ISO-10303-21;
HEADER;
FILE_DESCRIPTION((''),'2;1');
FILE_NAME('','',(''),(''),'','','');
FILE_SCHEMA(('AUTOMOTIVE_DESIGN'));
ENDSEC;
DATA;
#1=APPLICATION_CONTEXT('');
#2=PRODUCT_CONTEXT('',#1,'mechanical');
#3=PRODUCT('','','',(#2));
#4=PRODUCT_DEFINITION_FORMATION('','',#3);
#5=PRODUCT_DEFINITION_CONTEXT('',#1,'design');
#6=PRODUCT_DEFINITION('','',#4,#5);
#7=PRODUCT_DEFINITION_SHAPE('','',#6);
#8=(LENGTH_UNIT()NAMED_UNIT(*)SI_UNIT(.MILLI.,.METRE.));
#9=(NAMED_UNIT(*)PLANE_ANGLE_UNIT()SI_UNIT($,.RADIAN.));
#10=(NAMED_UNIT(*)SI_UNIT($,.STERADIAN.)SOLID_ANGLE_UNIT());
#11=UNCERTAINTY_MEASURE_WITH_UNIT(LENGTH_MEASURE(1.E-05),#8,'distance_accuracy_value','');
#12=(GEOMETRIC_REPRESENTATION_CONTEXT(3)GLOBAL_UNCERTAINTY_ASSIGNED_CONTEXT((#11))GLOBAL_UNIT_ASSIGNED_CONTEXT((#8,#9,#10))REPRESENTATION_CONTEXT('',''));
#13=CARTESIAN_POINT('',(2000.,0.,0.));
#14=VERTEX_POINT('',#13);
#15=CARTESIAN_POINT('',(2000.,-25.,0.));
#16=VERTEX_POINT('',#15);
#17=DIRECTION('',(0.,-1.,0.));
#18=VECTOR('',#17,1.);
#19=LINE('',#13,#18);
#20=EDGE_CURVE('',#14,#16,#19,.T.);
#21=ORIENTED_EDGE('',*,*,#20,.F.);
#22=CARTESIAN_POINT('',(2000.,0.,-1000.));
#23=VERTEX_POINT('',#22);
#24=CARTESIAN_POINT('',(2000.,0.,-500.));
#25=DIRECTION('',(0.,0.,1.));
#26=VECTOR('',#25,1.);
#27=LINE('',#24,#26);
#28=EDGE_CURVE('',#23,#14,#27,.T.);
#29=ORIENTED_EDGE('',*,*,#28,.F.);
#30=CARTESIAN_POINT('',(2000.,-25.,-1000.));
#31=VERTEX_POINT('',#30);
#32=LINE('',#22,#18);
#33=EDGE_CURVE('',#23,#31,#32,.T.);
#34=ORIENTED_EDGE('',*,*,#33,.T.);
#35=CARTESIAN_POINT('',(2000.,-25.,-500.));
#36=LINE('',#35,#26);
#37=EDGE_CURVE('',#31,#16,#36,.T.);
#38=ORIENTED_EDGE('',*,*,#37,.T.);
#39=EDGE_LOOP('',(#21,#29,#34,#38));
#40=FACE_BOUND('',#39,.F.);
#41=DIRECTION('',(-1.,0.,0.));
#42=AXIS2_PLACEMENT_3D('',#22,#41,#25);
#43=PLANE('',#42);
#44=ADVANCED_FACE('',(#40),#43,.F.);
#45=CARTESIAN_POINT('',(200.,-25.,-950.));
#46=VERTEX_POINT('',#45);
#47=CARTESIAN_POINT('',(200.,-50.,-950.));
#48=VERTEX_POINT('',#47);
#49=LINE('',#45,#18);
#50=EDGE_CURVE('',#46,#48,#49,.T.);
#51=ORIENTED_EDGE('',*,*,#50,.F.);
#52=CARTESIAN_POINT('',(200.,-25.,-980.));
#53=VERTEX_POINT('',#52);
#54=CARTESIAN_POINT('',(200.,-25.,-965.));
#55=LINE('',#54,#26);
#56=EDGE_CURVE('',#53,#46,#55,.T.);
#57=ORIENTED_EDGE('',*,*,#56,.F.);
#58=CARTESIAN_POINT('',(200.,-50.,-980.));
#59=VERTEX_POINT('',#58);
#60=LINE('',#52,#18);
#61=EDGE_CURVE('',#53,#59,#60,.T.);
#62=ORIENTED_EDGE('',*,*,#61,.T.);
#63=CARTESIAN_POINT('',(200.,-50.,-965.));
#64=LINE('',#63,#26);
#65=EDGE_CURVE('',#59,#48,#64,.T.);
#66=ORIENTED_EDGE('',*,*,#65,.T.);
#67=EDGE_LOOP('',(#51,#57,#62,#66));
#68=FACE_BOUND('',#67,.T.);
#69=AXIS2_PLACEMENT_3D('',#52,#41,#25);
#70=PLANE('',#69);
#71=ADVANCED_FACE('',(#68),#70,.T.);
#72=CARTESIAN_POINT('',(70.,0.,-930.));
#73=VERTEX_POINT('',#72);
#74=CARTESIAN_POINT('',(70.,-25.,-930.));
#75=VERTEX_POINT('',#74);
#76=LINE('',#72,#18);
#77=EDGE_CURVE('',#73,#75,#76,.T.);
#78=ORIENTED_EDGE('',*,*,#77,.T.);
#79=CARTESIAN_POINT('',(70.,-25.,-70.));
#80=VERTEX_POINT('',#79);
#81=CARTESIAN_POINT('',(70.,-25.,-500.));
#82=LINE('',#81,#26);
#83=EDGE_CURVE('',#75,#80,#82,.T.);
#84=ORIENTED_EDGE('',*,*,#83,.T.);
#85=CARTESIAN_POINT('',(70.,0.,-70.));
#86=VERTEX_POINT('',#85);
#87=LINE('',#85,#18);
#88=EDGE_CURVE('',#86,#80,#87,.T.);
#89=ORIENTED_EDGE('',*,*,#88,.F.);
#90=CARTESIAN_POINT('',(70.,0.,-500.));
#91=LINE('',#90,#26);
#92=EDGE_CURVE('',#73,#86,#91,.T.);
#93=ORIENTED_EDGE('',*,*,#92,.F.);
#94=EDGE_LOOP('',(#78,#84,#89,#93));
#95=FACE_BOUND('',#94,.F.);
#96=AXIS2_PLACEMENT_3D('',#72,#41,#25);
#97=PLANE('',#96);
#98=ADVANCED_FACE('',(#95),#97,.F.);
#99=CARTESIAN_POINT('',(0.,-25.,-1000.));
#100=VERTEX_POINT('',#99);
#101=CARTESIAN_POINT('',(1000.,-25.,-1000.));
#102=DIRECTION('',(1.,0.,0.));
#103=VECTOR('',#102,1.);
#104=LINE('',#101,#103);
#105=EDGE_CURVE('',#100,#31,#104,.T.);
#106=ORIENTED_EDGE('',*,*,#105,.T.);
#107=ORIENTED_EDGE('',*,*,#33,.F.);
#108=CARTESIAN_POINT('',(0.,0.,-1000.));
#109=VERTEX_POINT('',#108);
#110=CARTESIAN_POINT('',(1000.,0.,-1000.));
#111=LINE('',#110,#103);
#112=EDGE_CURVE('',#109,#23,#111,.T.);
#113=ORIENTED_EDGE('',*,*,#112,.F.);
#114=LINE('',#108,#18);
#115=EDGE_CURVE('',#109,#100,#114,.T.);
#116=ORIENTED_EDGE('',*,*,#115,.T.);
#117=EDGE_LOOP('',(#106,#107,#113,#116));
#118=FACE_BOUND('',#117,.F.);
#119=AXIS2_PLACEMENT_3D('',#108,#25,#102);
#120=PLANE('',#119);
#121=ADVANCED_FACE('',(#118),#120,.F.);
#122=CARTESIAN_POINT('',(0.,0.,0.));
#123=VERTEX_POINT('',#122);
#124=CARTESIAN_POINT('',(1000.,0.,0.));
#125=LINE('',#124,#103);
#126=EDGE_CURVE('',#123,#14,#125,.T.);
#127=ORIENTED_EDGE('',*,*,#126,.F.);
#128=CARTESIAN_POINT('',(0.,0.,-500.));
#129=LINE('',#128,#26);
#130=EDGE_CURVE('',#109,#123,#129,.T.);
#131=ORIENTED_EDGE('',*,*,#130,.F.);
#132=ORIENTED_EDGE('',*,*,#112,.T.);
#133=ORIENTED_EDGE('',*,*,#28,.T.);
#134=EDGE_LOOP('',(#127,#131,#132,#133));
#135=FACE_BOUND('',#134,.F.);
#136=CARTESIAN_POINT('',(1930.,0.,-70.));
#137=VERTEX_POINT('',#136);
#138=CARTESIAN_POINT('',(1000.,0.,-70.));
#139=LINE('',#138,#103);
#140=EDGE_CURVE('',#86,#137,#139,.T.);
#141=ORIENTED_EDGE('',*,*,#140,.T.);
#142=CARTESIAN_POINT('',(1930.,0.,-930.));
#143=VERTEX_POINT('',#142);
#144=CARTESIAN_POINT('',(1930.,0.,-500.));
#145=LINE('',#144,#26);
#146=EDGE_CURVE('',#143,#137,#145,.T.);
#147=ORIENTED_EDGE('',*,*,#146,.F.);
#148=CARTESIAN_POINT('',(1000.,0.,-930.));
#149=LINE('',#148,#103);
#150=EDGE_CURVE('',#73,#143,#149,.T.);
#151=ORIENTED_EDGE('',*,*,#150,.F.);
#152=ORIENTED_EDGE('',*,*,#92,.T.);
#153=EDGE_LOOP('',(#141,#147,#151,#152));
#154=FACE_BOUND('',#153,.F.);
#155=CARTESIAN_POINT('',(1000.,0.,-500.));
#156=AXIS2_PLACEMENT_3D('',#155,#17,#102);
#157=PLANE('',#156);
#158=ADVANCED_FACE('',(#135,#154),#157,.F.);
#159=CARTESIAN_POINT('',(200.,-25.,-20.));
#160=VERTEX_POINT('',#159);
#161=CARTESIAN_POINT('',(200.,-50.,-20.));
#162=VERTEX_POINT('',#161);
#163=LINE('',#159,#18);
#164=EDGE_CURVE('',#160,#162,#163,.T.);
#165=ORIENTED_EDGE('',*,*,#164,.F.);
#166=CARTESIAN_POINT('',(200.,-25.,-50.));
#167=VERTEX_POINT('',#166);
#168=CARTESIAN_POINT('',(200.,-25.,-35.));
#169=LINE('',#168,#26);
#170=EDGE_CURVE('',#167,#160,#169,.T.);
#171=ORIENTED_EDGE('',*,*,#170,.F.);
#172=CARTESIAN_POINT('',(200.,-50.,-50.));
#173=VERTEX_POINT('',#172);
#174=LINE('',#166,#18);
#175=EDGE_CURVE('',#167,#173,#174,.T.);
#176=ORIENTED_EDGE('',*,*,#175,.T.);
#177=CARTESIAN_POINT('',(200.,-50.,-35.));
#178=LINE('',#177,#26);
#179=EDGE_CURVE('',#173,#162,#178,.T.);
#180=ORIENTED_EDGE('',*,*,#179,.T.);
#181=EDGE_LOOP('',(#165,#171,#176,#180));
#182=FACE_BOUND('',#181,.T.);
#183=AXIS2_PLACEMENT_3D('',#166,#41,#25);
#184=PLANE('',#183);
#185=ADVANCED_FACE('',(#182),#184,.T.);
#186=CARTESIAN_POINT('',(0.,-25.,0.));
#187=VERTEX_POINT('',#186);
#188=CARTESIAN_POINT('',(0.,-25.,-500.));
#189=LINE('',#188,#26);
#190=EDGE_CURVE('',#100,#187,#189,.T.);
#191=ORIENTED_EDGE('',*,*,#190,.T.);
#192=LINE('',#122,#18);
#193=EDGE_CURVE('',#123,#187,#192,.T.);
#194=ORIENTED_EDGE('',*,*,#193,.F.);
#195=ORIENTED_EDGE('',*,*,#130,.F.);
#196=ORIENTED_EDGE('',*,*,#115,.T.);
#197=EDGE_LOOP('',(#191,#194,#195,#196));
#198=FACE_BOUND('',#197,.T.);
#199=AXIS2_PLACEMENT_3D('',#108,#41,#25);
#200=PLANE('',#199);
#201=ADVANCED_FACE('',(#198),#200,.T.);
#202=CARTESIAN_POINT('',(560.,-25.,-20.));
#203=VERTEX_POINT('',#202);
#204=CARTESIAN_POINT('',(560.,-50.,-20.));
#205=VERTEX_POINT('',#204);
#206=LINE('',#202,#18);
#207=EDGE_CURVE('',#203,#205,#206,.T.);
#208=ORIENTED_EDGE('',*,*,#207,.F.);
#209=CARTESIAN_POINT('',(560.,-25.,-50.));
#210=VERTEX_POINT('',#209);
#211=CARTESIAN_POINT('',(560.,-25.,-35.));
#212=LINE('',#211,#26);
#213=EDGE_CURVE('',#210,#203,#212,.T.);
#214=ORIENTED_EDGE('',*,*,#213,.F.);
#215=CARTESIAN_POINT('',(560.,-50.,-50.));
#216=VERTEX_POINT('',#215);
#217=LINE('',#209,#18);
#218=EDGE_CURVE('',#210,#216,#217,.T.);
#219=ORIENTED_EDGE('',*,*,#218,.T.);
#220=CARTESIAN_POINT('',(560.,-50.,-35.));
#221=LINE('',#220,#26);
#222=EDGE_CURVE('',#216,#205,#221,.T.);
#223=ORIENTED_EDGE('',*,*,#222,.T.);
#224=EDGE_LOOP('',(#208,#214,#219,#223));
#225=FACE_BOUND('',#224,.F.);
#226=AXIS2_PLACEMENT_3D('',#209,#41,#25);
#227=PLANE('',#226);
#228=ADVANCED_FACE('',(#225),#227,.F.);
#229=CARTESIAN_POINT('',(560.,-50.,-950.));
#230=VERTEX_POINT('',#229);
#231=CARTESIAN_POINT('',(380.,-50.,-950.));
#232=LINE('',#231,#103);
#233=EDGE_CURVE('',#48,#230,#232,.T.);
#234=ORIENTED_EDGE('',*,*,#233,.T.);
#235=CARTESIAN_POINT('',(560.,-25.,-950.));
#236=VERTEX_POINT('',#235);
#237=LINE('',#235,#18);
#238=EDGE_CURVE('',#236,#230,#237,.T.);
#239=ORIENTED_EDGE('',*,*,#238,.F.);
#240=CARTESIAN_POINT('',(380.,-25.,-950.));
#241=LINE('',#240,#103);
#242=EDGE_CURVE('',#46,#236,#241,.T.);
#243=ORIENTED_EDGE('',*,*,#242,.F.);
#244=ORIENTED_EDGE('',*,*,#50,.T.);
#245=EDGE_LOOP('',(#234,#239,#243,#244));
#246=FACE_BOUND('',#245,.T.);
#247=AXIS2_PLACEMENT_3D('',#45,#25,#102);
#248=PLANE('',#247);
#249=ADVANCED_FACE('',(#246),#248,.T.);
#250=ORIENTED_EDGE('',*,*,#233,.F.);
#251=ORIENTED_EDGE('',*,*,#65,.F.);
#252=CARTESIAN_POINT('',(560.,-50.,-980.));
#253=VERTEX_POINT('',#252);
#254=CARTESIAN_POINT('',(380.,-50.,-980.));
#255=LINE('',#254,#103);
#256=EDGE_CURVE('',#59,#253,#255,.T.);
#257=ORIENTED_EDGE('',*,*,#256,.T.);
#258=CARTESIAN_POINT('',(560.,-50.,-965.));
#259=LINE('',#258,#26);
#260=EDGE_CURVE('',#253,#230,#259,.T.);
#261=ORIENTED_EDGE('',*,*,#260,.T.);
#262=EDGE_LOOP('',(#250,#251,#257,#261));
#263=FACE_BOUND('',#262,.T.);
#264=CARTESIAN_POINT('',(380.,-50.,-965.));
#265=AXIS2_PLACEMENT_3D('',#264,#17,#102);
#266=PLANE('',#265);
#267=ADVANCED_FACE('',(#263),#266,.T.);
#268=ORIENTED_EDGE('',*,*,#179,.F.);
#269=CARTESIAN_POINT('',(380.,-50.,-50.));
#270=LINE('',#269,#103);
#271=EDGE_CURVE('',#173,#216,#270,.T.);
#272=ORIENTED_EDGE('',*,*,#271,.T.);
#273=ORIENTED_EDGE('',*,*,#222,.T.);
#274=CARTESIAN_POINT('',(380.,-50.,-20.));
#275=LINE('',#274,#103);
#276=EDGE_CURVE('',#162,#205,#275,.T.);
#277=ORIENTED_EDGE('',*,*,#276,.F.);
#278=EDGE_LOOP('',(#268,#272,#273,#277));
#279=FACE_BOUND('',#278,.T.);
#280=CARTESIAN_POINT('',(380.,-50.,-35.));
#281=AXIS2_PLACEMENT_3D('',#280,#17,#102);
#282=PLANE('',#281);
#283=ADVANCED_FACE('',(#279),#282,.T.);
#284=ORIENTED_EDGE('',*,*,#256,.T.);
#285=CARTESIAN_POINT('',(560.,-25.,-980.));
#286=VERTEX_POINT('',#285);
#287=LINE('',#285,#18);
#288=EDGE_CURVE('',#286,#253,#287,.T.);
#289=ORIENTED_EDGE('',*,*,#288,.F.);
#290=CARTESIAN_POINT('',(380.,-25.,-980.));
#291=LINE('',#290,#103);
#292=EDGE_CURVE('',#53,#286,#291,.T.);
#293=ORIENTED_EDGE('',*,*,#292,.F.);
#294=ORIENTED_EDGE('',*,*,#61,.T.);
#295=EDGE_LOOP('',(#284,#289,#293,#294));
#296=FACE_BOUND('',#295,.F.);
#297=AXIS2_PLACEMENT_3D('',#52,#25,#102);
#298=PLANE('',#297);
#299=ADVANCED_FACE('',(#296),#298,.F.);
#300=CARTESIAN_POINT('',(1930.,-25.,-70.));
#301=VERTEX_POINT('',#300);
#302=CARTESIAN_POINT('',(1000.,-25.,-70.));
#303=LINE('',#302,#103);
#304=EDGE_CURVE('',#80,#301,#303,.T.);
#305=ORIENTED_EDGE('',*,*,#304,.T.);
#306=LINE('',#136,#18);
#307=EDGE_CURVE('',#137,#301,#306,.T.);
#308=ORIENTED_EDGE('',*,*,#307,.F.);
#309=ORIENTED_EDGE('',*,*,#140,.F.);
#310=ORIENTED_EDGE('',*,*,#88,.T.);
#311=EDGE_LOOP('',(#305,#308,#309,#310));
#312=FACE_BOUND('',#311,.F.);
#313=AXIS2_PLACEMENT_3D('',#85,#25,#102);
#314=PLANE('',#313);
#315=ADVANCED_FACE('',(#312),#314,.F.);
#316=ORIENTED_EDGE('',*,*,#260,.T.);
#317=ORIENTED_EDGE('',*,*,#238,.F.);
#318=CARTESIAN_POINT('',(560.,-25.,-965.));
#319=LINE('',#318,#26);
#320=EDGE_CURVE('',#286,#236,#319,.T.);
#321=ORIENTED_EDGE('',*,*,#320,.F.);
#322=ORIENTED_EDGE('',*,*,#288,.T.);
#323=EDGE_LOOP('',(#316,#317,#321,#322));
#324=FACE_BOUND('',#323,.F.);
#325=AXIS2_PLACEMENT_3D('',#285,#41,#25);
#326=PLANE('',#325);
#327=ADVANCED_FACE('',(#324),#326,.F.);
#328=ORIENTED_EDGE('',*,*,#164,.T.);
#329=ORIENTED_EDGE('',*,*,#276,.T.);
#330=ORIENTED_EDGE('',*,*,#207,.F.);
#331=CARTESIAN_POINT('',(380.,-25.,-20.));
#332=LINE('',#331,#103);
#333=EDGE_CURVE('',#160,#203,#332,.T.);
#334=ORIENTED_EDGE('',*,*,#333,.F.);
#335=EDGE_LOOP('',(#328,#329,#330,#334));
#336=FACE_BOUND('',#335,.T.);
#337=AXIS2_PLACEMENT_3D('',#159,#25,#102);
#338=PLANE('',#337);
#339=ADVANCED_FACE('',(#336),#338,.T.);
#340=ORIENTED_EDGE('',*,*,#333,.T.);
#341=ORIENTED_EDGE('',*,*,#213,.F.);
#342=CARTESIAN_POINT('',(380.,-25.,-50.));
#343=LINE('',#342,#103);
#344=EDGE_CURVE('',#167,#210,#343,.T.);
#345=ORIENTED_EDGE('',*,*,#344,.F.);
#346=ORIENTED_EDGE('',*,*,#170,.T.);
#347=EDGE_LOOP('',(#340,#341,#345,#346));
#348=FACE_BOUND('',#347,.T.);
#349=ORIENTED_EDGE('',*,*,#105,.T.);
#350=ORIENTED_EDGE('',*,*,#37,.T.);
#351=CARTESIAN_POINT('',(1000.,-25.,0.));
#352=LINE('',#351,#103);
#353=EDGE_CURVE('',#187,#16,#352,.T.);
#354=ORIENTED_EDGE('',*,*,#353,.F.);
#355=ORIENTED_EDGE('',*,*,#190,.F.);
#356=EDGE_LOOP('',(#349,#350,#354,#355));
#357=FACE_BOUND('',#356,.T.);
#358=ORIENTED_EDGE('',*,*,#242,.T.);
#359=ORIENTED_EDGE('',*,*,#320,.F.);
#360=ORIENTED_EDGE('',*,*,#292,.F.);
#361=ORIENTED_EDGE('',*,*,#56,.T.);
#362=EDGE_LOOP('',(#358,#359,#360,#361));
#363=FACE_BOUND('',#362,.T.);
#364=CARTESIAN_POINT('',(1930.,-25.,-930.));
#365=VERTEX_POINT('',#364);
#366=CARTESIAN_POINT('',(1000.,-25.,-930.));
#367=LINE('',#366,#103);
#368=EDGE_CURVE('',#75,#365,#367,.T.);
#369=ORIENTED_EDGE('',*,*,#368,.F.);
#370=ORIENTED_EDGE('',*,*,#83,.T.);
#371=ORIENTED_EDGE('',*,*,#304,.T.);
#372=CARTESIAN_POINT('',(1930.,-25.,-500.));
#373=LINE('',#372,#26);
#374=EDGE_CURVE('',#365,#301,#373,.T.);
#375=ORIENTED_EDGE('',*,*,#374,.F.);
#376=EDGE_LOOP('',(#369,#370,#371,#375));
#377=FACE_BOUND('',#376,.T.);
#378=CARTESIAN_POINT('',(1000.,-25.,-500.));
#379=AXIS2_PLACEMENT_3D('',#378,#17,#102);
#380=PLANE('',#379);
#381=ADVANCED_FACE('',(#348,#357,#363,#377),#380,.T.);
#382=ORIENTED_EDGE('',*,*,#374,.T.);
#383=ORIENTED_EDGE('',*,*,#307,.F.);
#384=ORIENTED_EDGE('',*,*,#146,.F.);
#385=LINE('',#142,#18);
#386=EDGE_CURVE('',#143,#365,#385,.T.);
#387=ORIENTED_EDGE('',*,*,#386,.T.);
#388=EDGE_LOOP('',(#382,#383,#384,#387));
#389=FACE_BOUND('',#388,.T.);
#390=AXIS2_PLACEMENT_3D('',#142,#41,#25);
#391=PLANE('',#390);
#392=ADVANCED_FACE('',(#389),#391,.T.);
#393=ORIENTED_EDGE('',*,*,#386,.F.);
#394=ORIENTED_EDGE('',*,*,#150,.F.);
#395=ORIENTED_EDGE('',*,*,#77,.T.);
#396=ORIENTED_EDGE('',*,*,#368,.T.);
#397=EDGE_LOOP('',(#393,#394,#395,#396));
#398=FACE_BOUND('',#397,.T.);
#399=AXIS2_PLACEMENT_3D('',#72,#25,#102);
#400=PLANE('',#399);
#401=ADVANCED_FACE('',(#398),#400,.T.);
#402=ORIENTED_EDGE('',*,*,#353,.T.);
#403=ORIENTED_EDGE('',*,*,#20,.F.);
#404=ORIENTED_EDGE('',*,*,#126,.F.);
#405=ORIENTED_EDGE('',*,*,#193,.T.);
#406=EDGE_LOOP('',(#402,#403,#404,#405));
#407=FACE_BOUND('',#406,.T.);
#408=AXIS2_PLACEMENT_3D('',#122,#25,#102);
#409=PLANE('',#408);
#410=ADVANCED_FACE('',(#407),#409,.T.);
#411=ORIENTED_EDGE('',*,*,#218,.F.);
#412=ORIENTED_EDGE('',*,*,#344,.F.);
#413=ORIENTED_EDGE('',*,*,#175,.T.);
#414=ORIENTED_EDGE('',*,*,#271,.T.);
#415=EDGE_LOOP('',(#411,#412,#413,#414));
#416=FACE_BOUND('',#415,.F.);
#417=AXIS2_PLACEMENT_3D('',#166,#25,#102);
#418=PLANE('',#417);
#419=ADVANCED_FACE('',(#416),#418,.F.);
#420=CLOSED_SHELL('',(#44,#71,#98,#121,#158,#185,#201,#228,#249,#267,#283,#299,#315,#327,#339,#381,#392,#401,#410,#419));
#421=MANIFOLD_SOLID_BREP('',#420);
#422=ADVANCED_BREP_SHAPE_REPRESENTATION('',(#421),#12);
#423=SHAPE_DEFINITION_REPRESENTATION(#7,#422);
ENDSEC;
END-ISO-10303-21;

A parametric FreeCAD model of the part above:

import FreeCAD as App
import Part
import Sketcher

V = App.Vector
Q = App.Units.Quantity

doc = App.newDocument("Part")
body = doc.addObject("PartDesign::Body", "Body")

# Sketch on XZ plane
sketch1 = doc.addObject("Sketcher::SketchObject", "Sketch")
body.addObject(sketch1)
sketch1.AttachmentSupport = (doc.XZ_Plane, [""])
sketch1.MapMode = "FlatFace"
sketch1.addGeometry([
    Part.LineSegment(V(0, 0, 0), V(0, -1000, 0)),  # 0
    Part.LineSegment(V(0, -1000, 0), V(2000, -1000, 0)),  # 1
    Part.LineSegment(V(2000, -1000, 0), V(2000, 0, 0)),  # 2
    Part.LineSegment(V(2000, 0, 0), V(0, 0, 0)),  # 3
    Part.LineSegment(V(1930, -930, 0), V(70, -930, 0)),  # 4
    Part.LineSegment(V(70, -930, 0), V(70, -70, 0)),  # 5
    Part.LineSegment(V(70, -70, 0), V(1930, -70, 0)),  # 6
    Part.LineSegment(V(1930, -70, 0), V(1930, -930, 0)),  # 7
], False)
sketch1.addConstraint([
    Sketcher.Constraint("Coincident", 0, 2, 1, 1),
    Sketcher.Constraint("Coincident", 1, 2, 2, 1),
    Sketcher.Constraint("Coincident", 2, 2, 3, 1),
    Sketcher.Constraint("Coincident", 3, 2, 0, 1),
    Sketcher.Constraint("Coincident", 4, 2, 5, 1),
    Sketcher.Constraint("Coincident", 5, 2, 6, 1),
    Sketcher.Constraint("Coincident", 6, 2, 7, 1),
    Sketcher.Constraint("Coincident", 7, 2, 4, 1),
    Sketcher.Constraint("Vertical", 0),
    Sketcher.Constraint("Horizontal", 1),
    Sketcher.Constraint("Vertical", 2),
    Sketcher.Constraint("Horizontal", 3),
    Sketcher.Constraint("Horizontal", 4),
    Sketcher.Constraint("Vertical", 5),
    Sketcher.Constraint("Horizontal", 6),
    Sketcher.Constraint("Vertical", 7),
    Sketcher.Constraint("Coincident", 3, 2, -1, 1),
    Sketcher.Constraint("DistanceX", 1, 1, 1, 2, Q("2000 mm")),
    Sketcher.Constraint("DistanceX", 4, 2, 4, 1, Q("1860 mm")),
    Sketcher.Constraint("DistanceY", 0, 2, 0, 1, Q("1000 mm")),
    Sketcher.Constraint("DistanceY", 5, 1, 5, 2, Q("860 mm")),
    Sketcher.Constraint("DistanceX", -1, 1, 4, 2, Q("70 mm")),
    Sketcher.Constraint("DistanceY", 4, 2, -1, 1, Q("930 mm")),
])
pad1 = doc.addObject("PartDesign::Pad", "Pad")
body.addObject(pad1)
pad1.Profile = sketch1
pad1.Length = 25

# Sketch on XZ plane
sketch2 = doc.addObject("Sketcher::SketchObject", "Sketch001")
body.addObject(sketch2)
sketch2.AttachmentSupport = (doc.XZ_Plane, [""])
sketch2.MapMode = "FlatFace"
sketch2.AttachmentOffset = App.Placement(V(0, 0, 25), App.Rotation())
sketch2.addGeometry([
    Part.LineSegment(V(200, -20, 0), V(200, -50, 0)),  # 0
    Part.LineSegment(V(200, -50, 0), V(560, -50, 0)),  # 1
    Part.LineSegment(V(560, -50, 0), V(560, -20, 0)),  # 2
    Part.LineSegment(V(560, -20, 0), V(200, -20, 0)),  # 3
    Part.LineSegment(V(200, -950, 0), V(200, -980, 0)),  # 4
    Part.LineSegment(V(200, -980, 0), V(560, -980, 0)),  # 5
    Part.LineSegment(V(560, -980, 0), V(560, -950, 0)),  # 6
    Part.LineSegment(V(560, -950, 0), V(200, -950, 0)),  # 7
], False)
sketch2.addConstraint([
    Sketcher.Constraint("Coincident", 0, 2, 1, 1),
    Sketcher.Constraint("Coincident", 1, 2, 2, 1),
    Sketcher.Constraint("Coincident", 2, 2, 3, 1),
    Sketcher.Constraint("Coincident", 3, 2, 0, 1),
    Sketcher.Constraint("Coincident", 4, 2, 5, 1),
    Sketcher.Constraint("Coincident", 5, 2, 6, 1),
    Sketcher.Constraint("Coincident", 6, 2, 7, 1),
    Sketcher.Constraint("Coincident", 7, 2, 4, 1),
    Sketcher.Constraint("Vertical", 0),
    Sketcher.Constraint("Horizontal", 1),
    Sketcher.Constraint("Vertical", 2),
    Sketcher.Constraint("Horizontal", 3),
    Sketcher.Constraint("Vertical", 4),
    Sketcher.Constraint("Horizontal", 5),
    Sketcher.Constraint("Vertical", 6),
    Sketcher.Constraint("Horizontal", 7),
    Sketcher.Constraint("Vertical", 3, 2, 4, 2),
    Sketcher.Constraint("Vertical", 2, 2, 5, 2),
    Sketcher.Constraint("Equal", 2, 4),
    Sketcher.Constraint("DistanceX", 1, 1, 1, 2, Q("360 mm")),
    Sketcher.Constraint("DistanceY", 0, 2, 0, 1, Q("30 mm")),
    Sketcher.Constraint("DistanceX", -1, 1, 0, 2, Q("200 mm")),
    Sketcher.Constraint("DistanceY", 0, 2, -1, 1, Q("50 mm")),
    Sketcher.Constraint("DistanceY", 4, 2, -1, 1, Q("980 mm")),
])
pad2 = doc.addObject("PartDesign::Pad", "Pad001")
body.addObject(pad2)
pad2.Profile = sketch2
pad2.Length = 25

doc.recompute()
